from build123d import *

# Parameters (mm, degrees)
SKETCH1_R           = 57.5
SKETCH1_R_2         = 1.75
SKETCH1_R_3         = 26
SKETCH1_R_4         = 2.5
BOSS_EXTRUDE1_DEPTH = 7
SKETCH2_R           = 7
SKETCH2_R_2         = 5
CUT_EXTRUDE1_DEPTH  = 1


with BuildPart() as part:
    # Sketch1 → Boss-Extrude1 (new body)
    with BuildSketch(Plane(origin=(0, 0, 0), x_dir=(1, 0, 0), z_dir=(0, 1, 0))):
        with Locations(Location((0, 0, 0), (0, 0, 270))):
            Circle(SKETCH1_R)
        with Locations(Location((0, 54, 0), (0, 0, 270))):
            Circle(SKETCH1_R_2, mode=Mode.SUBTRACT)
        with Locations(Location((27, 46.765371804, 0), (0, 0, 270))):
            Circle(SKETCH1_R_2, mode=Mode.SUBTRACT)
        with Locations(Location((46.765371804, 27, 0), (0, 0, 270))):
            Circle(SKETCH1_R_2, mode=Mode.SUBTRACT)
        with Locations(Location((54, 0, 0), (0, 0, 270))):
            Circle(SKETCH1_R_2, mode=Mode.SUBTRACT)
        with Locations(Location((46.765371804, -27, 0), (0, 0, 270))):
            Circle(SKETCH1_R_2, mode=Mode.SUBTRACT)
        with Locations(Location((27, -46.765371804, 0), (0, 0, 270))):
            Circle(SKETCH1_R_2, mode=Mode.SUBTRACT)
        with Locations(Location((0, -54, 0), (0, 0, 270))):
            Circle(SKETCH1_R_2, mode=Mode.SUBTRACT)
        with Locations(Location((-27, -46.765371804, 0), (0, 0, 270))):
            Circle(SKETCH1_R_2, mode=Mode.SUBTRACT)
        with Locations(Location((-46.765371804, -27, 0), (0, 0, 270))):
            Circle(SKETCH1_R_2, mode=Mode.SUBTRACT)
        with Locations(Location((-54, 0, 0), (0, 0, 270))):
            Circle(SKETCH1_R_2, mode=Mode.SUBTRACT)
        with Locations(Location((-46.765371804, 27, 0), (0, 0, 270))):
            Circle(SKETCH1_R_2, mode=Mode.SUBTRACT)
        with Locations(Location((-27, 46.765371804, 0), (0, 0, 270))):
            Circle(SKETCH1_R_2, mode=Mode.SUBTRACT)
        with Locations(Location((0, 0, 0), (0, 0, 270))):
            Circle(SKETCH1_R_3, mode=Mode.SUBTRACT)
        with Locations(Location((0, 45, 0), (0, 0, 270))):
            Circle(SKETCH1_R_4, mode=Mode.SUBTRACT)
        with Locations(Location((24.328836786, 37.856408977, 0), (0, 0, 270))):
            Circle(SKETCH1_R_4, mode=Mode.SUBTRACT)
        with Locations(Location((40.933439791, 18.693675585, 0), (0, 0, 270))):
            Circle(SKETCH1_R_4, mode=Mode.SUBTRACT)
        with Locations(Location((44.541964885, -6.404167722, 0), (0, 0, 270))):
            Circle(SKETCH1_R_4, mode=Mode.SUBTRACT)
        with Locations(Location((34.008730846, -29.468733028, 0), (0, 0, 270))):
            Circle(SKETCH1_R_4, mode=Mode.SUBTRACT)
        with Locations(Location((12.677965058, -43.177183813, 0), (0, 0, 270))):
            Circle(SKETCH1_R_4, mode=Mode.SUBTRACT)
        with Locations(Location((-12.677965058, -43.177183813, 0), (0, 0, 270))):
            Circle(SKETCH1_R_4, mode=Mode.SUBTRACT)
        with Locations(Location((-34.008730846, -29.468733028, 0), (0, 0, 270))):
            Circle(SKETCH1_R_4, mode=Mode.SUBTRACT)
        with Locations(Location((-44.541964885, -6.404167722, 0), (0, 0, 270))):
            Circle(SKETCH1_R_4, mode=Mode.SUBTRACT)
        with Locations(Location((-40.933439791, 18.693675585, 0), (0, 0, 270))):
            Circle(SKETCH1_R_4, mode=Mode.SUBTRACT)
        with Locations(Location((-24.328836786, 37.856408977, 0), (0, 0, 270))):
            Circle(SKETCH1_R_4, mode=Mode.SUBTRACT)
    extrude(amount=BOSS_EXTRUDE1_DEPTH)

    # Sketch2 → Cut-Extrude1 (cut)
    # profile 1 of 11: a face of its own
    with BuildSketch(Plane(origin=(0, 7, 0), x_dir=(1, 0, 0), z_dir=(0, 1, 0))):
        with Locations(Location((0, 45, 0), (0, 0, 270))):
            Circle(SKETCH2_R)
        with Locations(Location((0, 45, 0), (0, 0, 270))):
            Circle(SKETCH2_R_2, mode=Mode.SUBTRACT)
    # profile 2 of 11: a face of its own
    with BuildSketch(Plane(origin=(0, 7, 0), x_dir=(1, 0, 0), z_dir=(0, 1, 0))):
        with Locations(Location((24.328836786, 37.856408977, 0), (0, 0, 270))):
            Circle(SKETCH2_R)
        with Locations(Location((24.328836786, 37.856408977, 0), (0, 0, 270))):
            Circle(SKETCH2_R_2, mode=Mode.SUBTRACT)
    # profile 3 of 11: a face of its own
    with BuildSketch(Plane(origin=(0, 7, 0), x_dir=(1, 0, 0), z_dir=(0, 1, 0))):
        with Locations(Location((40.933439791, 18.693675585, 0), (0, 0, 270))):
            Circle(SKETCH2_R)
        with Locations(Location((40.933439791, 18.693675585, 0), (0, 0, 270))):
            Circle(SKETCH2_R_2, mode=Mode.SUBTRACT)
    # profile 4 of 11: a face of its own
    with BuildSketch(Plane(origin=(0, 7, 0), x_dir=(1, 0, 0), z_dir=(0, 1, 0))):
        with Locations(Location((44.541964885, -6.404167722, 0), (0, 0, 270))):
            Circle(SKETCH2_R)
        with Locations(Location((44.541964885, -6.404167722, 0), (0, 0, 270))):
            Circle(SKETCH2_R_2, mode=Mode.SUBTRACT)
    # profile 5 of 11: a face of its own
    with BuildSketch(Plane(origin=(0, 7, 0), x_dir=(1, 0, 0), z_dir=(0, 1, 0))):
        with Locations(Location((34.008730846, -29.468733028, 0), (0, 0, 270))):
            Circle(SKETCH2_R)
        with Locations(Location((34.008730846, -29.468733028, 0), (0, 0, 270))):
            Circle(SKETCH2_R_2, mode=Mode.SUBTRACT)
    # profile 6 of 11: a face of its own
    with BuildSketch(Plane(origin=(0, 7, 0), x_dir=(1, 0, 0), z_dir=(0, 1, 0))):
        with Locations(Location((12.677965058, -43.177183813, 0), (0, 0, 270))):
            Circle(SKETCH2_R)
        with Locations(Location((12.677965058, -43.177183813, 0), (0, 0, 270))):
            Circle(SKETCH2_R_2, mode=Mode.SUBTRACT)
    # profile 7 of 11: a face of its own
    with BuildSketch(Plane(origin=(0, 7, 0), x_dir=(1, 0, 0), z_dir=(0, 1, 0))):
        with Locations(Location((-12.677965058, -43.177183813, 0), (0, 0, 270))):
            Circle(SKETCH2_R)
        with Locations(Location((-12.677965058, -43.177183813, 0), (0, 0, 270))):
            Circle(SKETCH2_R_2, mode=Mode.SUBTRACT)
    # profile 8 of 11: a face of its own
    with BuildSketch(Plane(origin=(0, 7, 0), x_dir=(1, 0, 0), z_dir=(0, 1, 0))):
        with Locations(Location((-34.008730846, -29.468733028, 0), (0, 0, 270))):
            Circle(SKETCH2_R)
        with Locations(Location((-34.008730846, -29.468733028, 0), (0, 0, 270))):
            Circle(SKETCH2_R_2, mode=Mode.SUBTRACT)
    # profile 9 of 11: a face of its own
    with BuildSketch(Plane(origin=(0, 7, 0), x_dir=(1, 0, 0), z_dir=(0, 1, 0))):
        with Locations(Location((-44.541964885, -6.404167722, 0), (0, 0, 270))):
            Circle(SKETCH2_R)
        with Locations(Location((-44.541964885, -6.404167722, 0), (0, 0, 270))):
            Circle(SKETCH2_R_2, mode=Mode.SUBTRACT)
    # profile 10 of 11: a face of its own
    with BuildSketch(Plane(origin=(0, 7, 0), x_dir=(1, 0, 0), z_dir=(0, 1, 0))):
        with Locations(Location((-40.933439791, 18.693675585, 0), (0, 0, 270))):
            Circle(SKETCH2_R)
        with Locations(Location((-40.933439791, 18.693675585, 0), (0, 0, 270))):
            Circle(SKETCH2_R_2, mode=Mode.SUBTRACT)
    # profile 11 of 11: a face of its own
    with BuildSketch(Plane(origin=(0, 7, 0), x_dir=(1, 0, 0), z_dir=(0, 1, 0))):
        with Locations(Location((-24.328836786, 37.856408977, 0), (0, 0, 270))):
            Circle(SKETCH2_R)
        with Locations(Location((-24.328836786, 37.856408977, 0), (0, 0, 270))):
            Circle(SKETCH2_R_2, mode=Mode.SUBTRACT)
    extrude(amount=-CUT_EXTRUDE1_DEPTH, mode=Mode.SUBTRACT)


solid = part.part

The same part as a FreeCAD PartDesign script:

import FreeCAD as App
import Part
import Sketcher
from FreeCAD import Vector

doc = App.newDocument("Part")
body = doc.addObject("PartDesign::Body", "Body")

sketch1 = doc.addObject("Sketcher::SketchObject", "Sketch")
body.addObject(sketch1)
sketch1.AttachmentSupport = (doc.XZ_Plane, [""])
sketch1.MapMode = "FlatFace"
sketch1.addGeometry([
    Part.Circle(Vector(0, 0, 0), Vector(0, 0, 1), 57.5),
    Part.Circle(Vector(-46.765372, -27, 0), Vector(0, 0, 1), 1.75),
    Part.Circle(Vector(-40.93344, -18.693676, 0), Vector(0, 0, 1), 2.5),
    Part.Circle(Vector(-27, -46.765372, 0), Vector(0, 0, 1), 1.75),
    Part.Circle(Vector(-24.328837, -37.856409, 0), Vector(0, 0, 1), 2.5),
    Part.Circle(Vector(0, -54, 0), Vector(0, 0, 1), 1.75),
    Part.Circle(Vector(0, -45, 0), Vector(0, 0, 1), 2.5),
    Part.Circle(Vector(-54, 0, 0), Vector(0, 0, 1), 1.75),
    Part.Circle(Vector(-44.541965, 6.404168, 0), Vector(0, 0, 1), 2.5),
    Part.Circle(Vector(-46.765372, 27, 0), Vector(0, 0, 1), 1.75),
    Part.Circle(Vector(-34.008731, 29.468733, 0), Vector(0, 0, 1), 2.5),
    Part.Circle(Vector(-27, 46.765372, 0), Vector(0, 0, 1), 1.75),
    Part.Circle(Vector(-12.677965, 43.177184, 0), Vector(0, 0, 1), 2.5),
    Part.Circle(Vector(27, -46.765372, 0), Vector(0, 0, 1), 1.75),
    Part.Circle(Vector(24.328837, -37.856409, 0), Vector(0, 0, 1), 2.5),
    Part.Circle(Vector(40.93344, -18.693676, 0), Vector(0, 0, 1), 2.5),
    Part.Circle(Vector(46.765372, -27, 0), Vector(0, 0, 1), 1.75),
    Part.Circle(Vector(54, 0, 0), Vector(0, 0, 1), 1.75),
    Part.Circle(Vector(0, 0, 0), Vector(0, 0, 1), 26),
    Part.Circle(Vector(0, 54, 0), Vector(0, 0, 1), 1.75),
    Part.Circle(Vector(12.677965, 43.177184, 0), Vector(0, 0, 1), 2.5),
    Part.Circle(Vector(27, 46.765372, 0), Vector(0, 0, 1), 1.75),
    Part.Circle(Vector(44.541965, 6.404168, 0), Vector(0, 0, 1), 2.5),
    Part.Circle(Vector(46.765372, 27, 0), Vector(0, 0, 1), 1.75),
    Part.Circle(Vector(34.008731, 29.468733, 0), Vector(0, 0, 1), 2.5),
], False)
sketch1.addConstraint([
    Sketcher.Constraint("Coincident", 0, 3, -1, 1),
    Sketcher.Constraint("Coincident", 18, 3, -1, 1),
    Sketcher.Constraint("Equal", 1, 3),
    Sketcher.Constraint("Equal", 2, 4),
    Sketcher.Constraint("Equal", 3, 5),
    Sketcher.Constraint("Equal", 4, 6),
    Sketcher.Constraint("Equal", 5, 7),
    Sketcher.Constraint("Equal", 6, 8),
    Sketcher.Constraint("Equal", 7, 9),
    Sketcher.Constraint("Equal", 8, 10),
    Sketcher.Constraint("Equal", 9, 11),
    Sketcher.Constraint("Equal", 10, 12),
    Sketcher.Constraint("Equal", 11, 13),
    Sketcher.Constraint("Equal", 12, 14),
    Sketcher.Constraint("Equal", 14, 15),
    Sketcher.Constraint("Equal", 13, 16),
    Sketcher.Constraint("Equal", 16, 17),
    Sketcher.Constraint("Equal", 17, 19),
    Sketcher.Constraint("Equal", 15, 20),
    Sketcher.Constraint("Equal", 19, 21),
    Sketcher.Constraint("Equal", 20, 22),
    Sketcher.Constraint("Equal", 21, 23),
    Sketcher.Constraint("Equal", 22, 24),
    Sketcher.Constraint("Symmetric", 11, 3, 13, 3, -1, 1),
    Sketcher.Constraint("Symmetric", 9, 3, 16, 3, -1, 1),
    Sketcher.Constraint("Symmetric", 7, 3, 17, 3, -1, 1),
    Sketcher.Constraint("Symmetric", 5, 3, 19, 3, -1, 1),
    Sketcher.Constraint("Symmetric", 3, 3, 21, 3, -1, 1),
    Sketcher.Constraint("Symmetric", 1, 3, 23, 3, -1, 1),
    Sketcher.Constraint("Symmetric", 3, 3, 13, 3, -2),
    Sketcher.Constraint("Symmetric", 4, 3, 14, 3, -2),
    Sketcher.Constraint("Symmetric", 2, 3, 15, 3, -2),
    Sketcher.Constraint("Symmetric", 1, 3, 16, 3, -2),
    Sketcher.Constraint("Symmetric", 12, 3, 20, 3, -2),
    Sketcher.Constraint("Symmetric", 8, 3, 22, 3, -2),
    Sketcher.Constraint("Symmetric", 10, 3, 24, 3, -2),
    Sketcher.Constraint("PointOnObject", 5, 3, -2),
    Sketcher.Constraint("PointOnObject", 6, 3, -2),
    Sketcher.Constraint("PointOnObject", 7, 3, -1),
    Sketcher.Constraint("Diameter", 0, 115.0),
    Sketcher.Constraint("Diameter", 2, 5.0),
    Sketcher.Constraint("Diameter", 18, 52.0),
    Sketcher.Constraint("Diameter", 1, 3.5),
    Sketcher.Constraint("DistanceY", 1, 3, -1, 1, 27.0),
    Sketcher.Constraint("DistanceX", 3, 3, -1, 1, 27.0),
    Sketcher.Constraint("DistanceY", 5, 3, -1, 1, 54.0),
    Sketcher.Constraint("DistanceY", 6, 3, -1, 1, 45.0),
    Sketcher.Constraint("DistanceX", 7, 3, -1, 1, 54.0),
    Sketcher.Constraint("DistanceX", 8, 3, 12, 3, 31.864),
    Sketcher.Constraint("DistanceX", 1, 3, -1, 1, 46.765372),
    Sketcher.Constraint("DistanceX", 2, 3, -1, 1, 40.93344),
    Sketcher.Constraint("DistanceY", 3, 3, -1, 1, 46.765372),
    Sketcher.Constraint("DistanceY", 4, 3, -1, 1, 37.856409),
    Sketcher.Constraint("DistanceX", 10, 3, -1, 1, 34.008731),
    Sketcher.Constraint("DistanceX", 8, 3, 4, 3, 20.213128),
    Sketcher.Constraint("DistanceY", 2, 3, 10, 3, 48.162409),
    Sketcher.Constraint("DistanceY", 10, 3, 11, 3, 17.296639),
    Sketcher.Constraint("DistanceY", 10, 3, 12, 3, 13.708451),
    Sketcher.Constraint("DistanceX", 12, 3, 20, 3, 25.35593),
    Sketcher.Constraint("DistanceY", -1, 1, 8, 3, 6.404168),
])
pad1 = doc.addObject("PartDesign::Pad", "Pad")
body.addObject(pad1)
pad1.Profile = sketch1
pad1.Length = 7
pad1.Reversed = True

sketch2 = doc.addObject("Sketcher::SketchObject", "Sketch001")
body.addObject(sketch2)
sketch2.AttachmentSupport = (doc.XZ_Plane, [""])
sketch2.MapMode = "FlatFace"
sketch2.AttachmentOffset = App.Placement(Vector(0, 0, -7), App.Rotation())
sketch2.addGeometry([
    Part.Circle(Vector(0, -45, 0), Vector(0, 0, 1), 7),
    Part.Circle(Vector(0, -45, 0), Vector(0, 0, 1), 5),
    Part.Circle(Vector(24.328837, -37.856409, 0), Vector(0, 0, 1), 7),
    Part.Circle(Vector(24.328837, -37.856409, 0), Vector(0, 0, 1), 5),
    Part.Circle(Vector(40.93344, -18.693676, 0), Vector(0, 0, 1), 7),
    Part.Circle(Vector(40.93344, -18.693676, 0), Vector(0, 0, 1), 5),
    Part.Circle(Vector(44.541965, 6.404168, 0), Vector(0, 0, 1), 7),
    Part.Circle(Vector(44.541965, 6.404168, 0), Vector(0, 0, 1), 5),
    Part.Circle(Vector(34.008731, 29.468733, 0), Vector(0, 0, 1), 7),
    Part.Circle(Vector(34.008731, 29.468733, 0), Vector(0, 0, 1), 5),
    Part.Circle(Vector(12.677965, 43.177184, 0), Vector(0, 0, 1), 7),
    Part.Circle(Vector(12.677965, 43.177184, 0), Vector(0, 0, 1), 5),
    Part.Circle(Vector(-12.677965, 43.177184, 0), Vector(0, 0, 1), 7),
    Part.Circle(Vector(-12.677965, 43.177184, 0), Vector(0, 0, 1), 5),
    Part.Circle(Vector(-34.008731, 29.468733, 0), Vector(0, 0, 1), 7),
    Part.Circle(Vector(-34.008731, 29.468733, 0), Vector(0, 0, 1), 5),
    Part.Circle(Vector(-44.541965, 6.404168, 0), Vector(0, 0, 1), 7),
    Part.Circle(Vector(-44.541965, 6.404168, 0), Vector(0, 0, 1), 5),
    Part.Circle(Vector(-40.93344, -18.693676, 0), Vector(0, 0, 1), 7),
    Part.Circle(Vector(-40.93344, -18.693676, 0), Vector(0, 0, 1), 5),
    Part.Circle(Vector(-24.328837, -37.856409, 0), Vector(0, 0, 1), 7),
    Part.Circle(Vector(-24.328837, -37.856409, 0), Vector(0, 0, 1), 5),
], False)
sketch2.addConstraint([
    Sketcher.Constraint("Coincident", 1, 3, 0, 3),
    Sketcher.Constraint("Coincident", 3, 3, 2, 3),
    Sketcher.Constraint("Coincident", 5, 3, 4, 3),
    Sketcher.Constraint("Coincident", 7, 3, 6, 3),
    Sketcher.Constraint("Coincident", 9, 3, 8, 3),
    Sketcher.Constraint("Coincident", 11, 3, 10, 3),
    Sketcher.Constraint("Coincident", 13, 3, 12, 3),
    Sketcher.Constraint("Coincident", 15, 3, 14, 3),
    Sketcher.Constraint("Coincident", 17, 3, 16, 3),
    Sketcher.Constraint("Coincident", 19, 3, 18, 3),
    Sketcher.Constraint("Coincident", 21, 3, 20, 3),
    Sketcher.Constraint("Equal", 0, 2),
    Sketcher.Constraint("Equal", 1, 3),
    Sketcher.Constraint("Equal", 2, 4),
    Sketcher.Constraint("Equal", 3, 5),
    Sketcher.Constraint("Equal", 4, 6),
    Sketcher.Constraint("Equal", 5, 7),
    Sketcher.Constraint("Equal", 6, 8),
    Sketcher.Constraint("Equal", 7, 9),
    Sketcher.Constraint("Equal", 8, 10),
    Sketcher.Constraint("Equal", 9, 11),
    Sketcher.Constraint("Equal", 10, 12),
    Sketcher.Constraint("Equal", 11, 13),
    Sketcher.Constraint("Equal", 12, 14),
    Sketcher.Constraint("Equal", 13, 15),
    Sketcher.Constraint("Equal", 14, 16),
    Sketcher.Constraint("Equal", 15, 17),
    Sketcher.Constraint("Equal", 16, 18),
    Sketcher.Constraint("Equal", 17, 19),
    Sketcher.Constraint("Equal", 18, 20),
    Sketcher.Constraint("Equal", 19, 21),
    Sketcher.Constraint("Symmetric", 10, 3, 12, 3, -2),
    Sketcher.Constraint("Symmetric", 8, 3, 14, 3, -2),
    Sketcher.Constraint("Symmetric", 6, 3, 16, 3, -2),
    Sketcher.Constraint("Symmetric", 4, 3, 18, 3, -2),
    Sketcher.Constraint("Symmetric", 2, 3, 20, 3, -2),
    Sketcher.Constraint("PointOnObject", 0, 3, -2),
    Sketcher.Constraint("Diameter", 0, 14.0),
    Sketcher.Constraint("Diameter", 1, 10.0),
    Sketcher.Constraint("DistanceY", 0, 3, -1, 1, 45.0),
    Sketcher.Constraint("DistanceX", 10, 3, 6, 3, 31.864),
    Sketcher.Constraint("DistanceY", 2, 3, -1, 1, 37.856409),
    Sketcher.Constraint("DistanceX", -1, 1, 4, 3, 40.93344),
    Sketcher.Constraint("DistanceX", -1, 1, 8, 3, 34.008731),
    Sketcher.Constraint("DistanceX", 2, 3, 6, 3, 20.213128),
    Sketcher.Constraint("DistanceY", 4, 3, 8, 3, 48.162409),
    Sketcher.Constraint("DistanceY", 8, 3, 10, 3, 13.708451),
    Sketcher.Constraint("DistanceX", 12, 3, 10, 3, 25.35593),
    Sketcher.Constraint("DistanceY", 4, 3, -1, 1, 18.693676),
    Sketcher.Constraint("DistanceY", -1, 1, 6, 3, 6.404168),
])
pocket1 = doc.addObject("PartDesign::Pocket", "Pocket")
body.addObject(pocket1)
pocket1.Profile = sketch2
pocket1.Length = 1
pocket1.Reversed = True

doc.recompute()
